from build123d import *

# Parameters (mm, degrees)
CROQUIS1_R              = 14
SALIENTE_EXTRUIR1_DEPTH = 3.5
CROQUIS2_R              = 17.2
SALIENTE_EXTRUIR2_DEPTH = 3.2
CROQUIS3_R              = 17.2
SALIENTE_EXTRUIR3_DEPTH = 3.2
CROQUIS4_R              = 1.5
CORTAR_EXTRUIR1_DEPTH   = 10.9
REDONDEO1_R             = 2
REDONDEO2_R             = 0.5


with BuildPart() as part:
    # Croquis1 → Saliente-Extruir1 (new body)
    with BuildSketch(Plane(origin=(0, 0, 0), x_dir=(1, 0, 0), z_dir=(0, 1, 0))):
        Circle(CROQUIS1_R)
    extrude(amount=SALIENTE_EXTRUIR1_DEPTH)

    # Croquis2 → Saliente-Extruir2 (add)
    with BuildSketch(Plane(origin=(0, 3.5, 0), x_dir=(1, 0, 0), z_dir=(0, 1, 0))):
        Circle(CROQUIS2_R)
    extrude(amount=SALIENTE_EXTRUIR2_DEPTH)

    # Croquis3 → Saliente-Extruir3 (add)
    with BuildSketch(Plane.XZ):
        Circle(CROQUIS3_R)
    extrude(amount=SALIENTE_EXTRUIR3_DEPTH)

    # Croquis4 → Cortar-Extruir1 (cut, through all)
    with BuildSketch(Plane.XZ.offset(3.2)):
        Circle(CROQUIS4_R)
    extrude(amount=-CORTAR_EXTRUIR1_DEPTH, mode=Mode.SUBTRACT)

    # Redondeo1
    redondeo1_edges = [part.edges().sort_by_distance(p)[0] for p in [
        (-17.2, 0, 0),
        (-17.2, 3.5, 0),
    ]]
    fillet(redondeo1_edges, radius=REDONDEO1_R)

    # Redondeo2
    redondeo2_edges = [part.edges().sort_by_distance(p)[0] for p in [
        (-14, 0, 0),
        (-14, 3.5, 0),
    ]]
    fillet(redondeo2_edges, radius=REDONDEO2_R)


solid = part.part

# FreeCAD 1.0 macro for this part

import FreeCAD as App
import Part
import Sketcher


def edges_at(feature, points):
    """Names of the edges that pass closest to the given points."""
    edges = feature.Shape.Edges
    near = lambda p: min(range(len(edges)), key=lambda i: edges[i].distToShape(Part.Vertex(*p))[0])
    return sorted({f"Edge{near(p) + 1}" for p in points})

doc = App.newDocument("Part")
body = doc.addObject("PartDesign::Body", "Body")

sketch1 = body.newObject("Sketcher::SketchObject", "Sketch")
sketch1.AttachmentSupport = (doc.getObject("XZ_Plane"), [""])
sketch1.MapMode = "FlatFace"
sketch1.addGeometry(Part.Circle(App.Vector(0, 0, 0), App.Vector(0, 0, 1), 14), False)
sketch1.addConstraint([
    Sketcher.Constraint("Coincident", 0, 3, -1, 1),
    Sketcher.Constraint("Diameter", 0, 28.0),
])
pad1 = body.newObject("PartDesign::Pad", "Pad")
pad1.Profile = sketch1
pad1.Length = 3.5
pad1.Reversed = True

sketch2 = body.newObject("Sketcher::SketchObject", "Sketch001")
sketch2.AttachmentSupport = (doc.getObject("XZ_Plane"), [""])
sketch2.MapMode = "FlatFace"
sketch2.AttachmentOffset = App.Placement(App.Vector(0, 0, -3.5), App.Rotation())
sketch2.addGeometry(Part.Circle(App.Vector(0, 0, 0), App.Vector(0, 0, 1), 17), False)
sketch2.addConstraint([
    Sketcher.Constraint("Coincident", 0, 3, -1, 1),
    Sketcher.Constraint("Diameter", 0, 34.4),
])
pad2 = body.newObject("PartDesign::Pad", "Pad001")
pad2.Profile = sketch2
pad2.Length = 3.2
pad2.Reversed = True

sketch3 = body.newObject("Sketcher::SketchObject", "Sketch002")
sketch3.AttachmentSupport = (doc.getObject("XZ_Plane"), [""])
sketch3.MapMode = "FlatFace"
sketch3.addGeometry(Part.Circle(App.Vector(0, 0, 0), App.Vector(0, 0, 1), 17), False)
sketch3.addConstraint([
    Sketcher.Constraint("Coincident", 0, 3, -1, 1),
    Sketcher.Constraint("Diameter", 0, 34.4),
])
pad3 = body.newObject("PartDesign::Pad", "Pad002")
pad3.Profile = sketch3
pad3.Length = 3.2

sketch4 = body.newObject("Sketcher::SketchObject", "Sketch003")
sketch4.AttachmentSupport = (doc.getObject("XZ_Plane"), [""])
sketch4.MapMode = "FlatFace"
sketch4.AttachmentOffset = App.Placement(App.Vector(0, 0, 3.2), App.Rotation())
sketch4.addGeometry(Part.Circle(App.Vector(0, 0, 0), App.Vector(0, 0, 1), 1.5), False)
sketch4.addConstraint([
    Sketcher.Constraint("Coincident", 0, 3, -1, 1),
    Sketcher.Constraint("Diameter", 0, 3.0),
])
pocket1 = body.newObject("PartDesign::Pocket", "Pocket")
pocket1.Profile = sketch4
pocket1.Type = "ThroughAll"
doc.recompute()

fillet = body.newObject("PartDesign::Fillet", "Fillet")
fillet.Base = (pocket1, edges_at(pocket1, [(-17.2, 0, 0), (-17.2, 3.5, 0)]))
fillet.Radius = 2
doc.recompute()

fillet2 = body.newObject("PartDesign::Fillet", "Fillet001")
fillet2.Base = (fillet, edges_at(fillet, [(-14, 0, 0), (-14, 3.5, 0)]))
fillet2.Radius = 0.5

doc.recompute()
